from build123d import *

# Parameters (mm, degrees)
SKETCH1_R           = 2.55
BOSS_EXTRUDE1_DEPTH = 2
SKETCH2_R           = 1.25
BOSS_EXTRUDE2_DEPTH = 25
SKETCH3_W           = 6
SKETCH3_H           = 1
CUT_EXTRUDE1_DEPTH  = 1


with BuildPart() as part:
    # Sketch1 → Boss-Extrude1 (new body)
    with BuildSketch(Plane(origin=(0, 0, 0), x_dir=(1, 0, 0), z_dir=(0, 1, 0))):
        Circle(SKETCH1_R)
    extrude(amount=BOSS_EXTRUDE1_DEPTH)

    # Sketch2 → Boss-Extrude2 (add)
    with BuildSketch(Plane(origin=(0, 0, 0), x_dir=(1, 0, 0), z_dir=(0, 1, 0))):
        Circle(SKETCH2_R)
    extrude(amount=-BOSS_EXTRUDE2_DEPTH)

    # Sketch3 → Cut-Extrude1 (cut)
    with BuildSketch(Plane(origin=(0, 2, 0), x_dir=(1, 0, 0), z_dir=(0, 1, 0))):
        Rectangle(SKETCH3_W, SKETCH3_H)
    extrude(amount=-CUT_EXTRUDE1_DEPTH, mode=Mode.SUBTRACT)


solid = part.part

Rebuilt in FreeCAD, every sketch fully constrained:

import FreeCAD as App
import Part
import Sketcher
from FreeCAD import Vector

doc = App.newDocument("Part")
body = doc.addObject("PartDesign::Body", "Body")

# Sketch on XZ plane
sketch1 = body.newObject("Sketcher::SketchObject", "Sketch")
sketch1.AttachmentSupport = (doc.getObject("XZ_Plane"), [""])
sketch1.MapMode = "FlatFace"
sketch1.addGeometry(Part.Circle(Vector(0, 0, 0), Vector(0, 0, 1), 2.55), False)
sketch1.addConstraint(Sketcher.Constraint("Coincident", 0, 3, -1, 1))
sketch1.addConstraint(Sketcher.Constraint("Diameter", 0, 5.1))
pad1 = body.newObject("PartDesign::Pad", "Pad")
pad1.Profile = sketch1
pad1.Length = 2
pad1.Reversed = True

# Sketch on XZ plane
sketch2 = body.newObject("Sketcher::SketchObject", "Sketch001")
sketch2.AttachmentSupport = (doc.getObject("XZ_Plane"), [""])
sketch2.MapMode = "FlatFace"
sketch2.addGeometry(Part.Circle(Vector(0, 0, 0), Vector(0, 0, 1), 1.25), False)
sketch2.addConstraint(Sketcher.Constraint("Coincident", 0, 3, -1, 1))
sketch2.addConstraint(Sketcher.Constraint("Diameter", 0, 2.5))
pad2 = body.newObject("PartDesign::Pad", "Pad001")
pad2.Profile = sketch2
pad2.Length = 25

# Sketch on XZ plane
sketch3 = body.newObject("Sketcher::SketchObject", "Sketch002")
sketch3.AttachmentSupport = (doc.getObject("XZ_Plane"), [""])
sketch3.MapMode = "FlatFace"
sketch3.AttachmentOffset = App.Placement(Vector(0, 0, -2), App.Rotation())
sketch3.addGeometry(Part.LineSegment(Vector(-3, -0.5, 0), Vector(-3, 0.5, 0)), False)
sketch3.addGeometry(Part.LineSegment(Vector(-3, 0.5, 0), Vector(3, 0.5, 0)), False)
sketch3.addGeometry(Part.LineSegment(Vector(3, 0.5, 0), Vector(3, -0.5, 0)), False)
sketch3.addGeometry(Part.LineSegment(Vector(3, -0.5, 0), Vector(-3, -0.5, 0)), False)
sketch3.addConstraint(Sketcher.Constraint("Coincident", 0, 2, 1, 1))
sketch3.addConstraint(Sketcher.Constraint("Coincident", 1, 2, 2, 1))
sketch3.addConstraint(Sketcher.Constraint("Coincident", 2, 2, 3, 1))
sketch3.addConstraint(Sketcher.Constraint("Coincident", 3, 2, 0, 1))
sketch3.addConstraint(Sketcher.Constraint("Vertical", 0))
sketch3.addConstraint(Sketcher.Constraint("Horizontal", 1))
sketch3.addConstraint(Sketcher.Constraint("Vertical", 2))
sketch3.addConstraint(Sketcher.Constraint("Horizontal", 3))
sketch3.addConstraint(Sketcher.Constraint("Symmetric", 0, 2, 2, 2, -1, 1))
sketch3.addConstraint(Sketcher.Constraint("DistanceX", 1, 1, 1, 2, 6.0))
sketch3.addConstraint(Sketcher.Constraint("DistanceY", 0, 1, 0, 2, 1.0))
pocket1 = body.newObject("PartDesign::Pocket", "Pocket")
pocket1.Profile = sketch3
pocket1.Length = 1
pocket1.Reversed = True

doc.recompute()
